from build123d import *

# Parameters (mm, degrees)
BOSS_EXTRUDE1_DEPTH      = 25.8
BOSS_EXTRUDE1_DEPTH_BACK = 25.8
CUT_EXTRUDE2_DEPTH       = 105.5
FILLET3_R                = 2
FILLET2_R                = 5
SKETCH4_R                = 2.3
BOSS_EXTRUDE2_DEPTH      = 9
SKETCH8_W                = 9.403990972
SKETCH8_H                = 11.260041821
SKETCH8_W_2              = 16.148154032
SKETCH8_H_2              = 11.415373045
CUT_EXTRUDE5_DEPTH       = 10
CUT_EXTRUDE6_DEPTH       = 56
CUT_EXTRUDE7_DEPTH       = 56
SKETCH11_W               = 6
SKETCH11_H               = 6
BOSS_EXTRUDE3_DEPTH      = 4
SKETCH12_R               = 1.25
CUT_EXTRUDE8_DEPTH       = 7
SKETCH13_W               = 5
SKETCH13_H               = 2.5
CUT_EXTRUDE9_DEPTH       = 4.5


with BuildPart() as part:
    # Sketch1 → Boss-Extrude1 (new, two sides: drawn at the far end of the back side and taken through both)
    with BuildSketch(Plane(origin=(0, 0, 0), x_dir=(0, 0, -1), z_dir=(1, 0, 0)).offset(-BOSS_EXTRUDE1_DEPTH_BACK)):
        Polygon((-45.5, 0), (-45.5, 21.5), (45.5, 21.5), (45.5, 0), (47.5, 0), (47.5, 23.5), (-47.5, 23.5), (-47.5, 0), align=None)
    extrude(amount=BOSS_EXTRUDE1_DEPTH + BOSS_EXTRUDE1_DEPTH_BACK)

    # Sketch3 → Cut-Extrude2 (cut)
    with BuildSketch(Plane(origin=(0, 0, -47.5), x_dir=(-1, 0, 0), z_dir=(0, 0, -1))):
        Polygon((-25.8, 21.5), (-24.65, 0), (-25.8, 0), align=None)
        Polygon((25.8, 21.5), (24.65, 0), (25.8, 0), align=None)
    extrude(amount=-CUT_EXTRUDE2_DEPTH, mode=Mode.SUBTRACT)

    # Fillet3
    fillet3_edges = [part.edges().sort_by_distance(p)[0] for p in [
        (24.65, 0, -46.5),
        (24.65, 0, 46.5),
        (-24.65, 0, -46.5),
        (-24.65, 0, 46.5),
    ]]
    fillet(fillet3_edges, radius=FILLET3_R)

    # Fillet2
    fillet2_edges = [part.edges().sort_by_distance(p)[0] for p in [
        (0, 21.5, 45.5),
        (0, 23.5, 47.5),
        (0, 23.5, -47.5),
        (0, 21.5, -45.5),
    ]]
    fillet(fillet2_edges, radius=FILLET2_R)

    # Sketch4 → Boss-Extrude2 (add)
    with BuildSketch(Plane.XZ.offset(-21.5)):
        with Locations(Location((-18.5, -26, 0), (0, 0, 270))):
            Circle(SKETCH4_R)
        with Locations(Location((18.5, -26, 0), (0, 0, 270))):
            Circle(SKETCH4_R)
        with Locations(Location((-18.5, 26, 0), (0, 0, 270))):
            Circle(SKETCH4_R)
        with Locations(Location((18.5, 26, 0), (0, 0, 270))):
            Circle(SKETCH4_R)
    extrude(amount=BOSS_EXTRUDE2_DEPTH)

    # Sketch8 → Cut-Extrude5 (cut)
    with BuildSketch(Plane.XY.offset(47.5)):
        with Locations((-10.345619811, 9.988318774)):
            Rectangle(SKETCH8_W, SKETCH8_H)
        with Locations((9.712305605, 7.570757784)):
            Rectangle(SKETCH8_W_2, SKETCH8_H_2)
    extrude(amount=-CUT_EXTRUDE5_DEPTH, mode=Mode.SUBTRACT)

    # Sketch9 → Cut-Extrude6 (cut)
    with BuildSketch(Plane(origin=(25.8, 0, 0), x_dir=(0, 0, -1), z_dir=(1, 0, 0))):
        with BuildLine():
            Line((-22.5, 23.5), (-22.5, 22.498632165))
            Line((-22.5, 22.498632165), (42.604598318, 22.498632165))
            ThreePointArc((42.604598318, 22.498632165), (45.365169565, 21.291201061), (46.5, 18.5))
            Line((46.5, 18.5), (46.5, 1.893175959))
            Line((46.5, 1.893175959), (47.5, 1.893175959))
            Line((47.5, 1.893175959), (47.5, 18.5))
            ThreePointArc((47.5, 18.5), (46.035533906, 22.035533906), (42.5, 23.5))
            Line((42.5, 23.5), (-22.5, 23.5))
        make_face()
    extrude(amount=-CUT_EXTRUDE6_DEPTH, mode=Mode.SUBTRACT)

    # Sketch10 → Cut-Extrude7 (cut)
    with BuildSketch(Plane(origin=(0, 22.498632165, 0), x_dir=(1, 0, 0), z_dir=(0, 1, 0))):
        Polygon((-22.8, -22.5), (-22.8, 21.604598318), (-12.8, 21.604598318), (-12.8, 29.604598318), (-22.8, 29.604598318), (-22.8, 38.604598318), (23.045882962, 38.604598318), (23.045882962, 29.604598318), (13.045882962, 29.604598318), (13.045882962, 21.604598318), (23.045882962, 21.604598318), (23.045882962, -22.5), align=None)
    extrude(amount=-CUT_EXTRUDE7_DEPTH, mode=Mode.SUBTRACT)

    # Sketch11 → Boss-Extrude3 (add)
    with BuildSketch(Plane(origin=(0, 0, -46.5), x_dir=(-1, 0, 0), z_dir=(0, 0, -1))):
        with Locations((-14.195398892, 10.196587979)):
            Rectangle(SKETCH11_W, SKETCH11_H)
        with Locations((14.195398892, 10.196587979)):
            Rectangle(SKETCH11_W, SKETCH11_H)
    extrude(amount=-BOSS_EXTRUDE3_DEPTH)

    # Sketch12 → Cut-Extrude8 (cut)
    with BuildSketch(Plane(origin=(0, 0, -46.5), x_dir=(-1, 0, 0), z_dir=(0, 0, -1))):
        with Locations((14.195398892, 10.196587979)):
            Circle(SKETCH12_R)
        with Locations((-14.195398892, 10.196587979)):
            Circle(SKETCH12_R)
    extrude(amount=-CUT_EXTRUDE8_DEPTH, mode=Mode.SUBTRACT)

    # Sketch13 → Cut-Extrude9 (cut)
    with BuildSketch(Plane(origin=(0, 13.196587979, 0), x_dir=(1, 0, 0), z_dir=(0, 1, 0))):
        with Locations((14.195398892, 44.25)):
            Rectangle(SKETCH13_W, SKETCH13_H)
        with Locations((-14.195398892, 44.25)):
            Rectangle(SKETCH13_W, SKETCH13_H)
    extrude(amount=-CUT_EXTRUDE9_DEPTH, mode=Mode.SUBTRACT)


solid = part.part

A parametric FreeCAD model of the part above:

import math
import FreeCAD as App
import Part
import Sketcher

V = App.Vector
Q = App.Units.Quantity


def edges_at(feature, points):
    """Names of the edges that pass closest to the given points."""
    edges = feature.Shape.Edges
    near = lambda p: min(range(len(edges)), key=lambda i: edges[i].distToShape(Part.Vertex(*p))[0])
    return sorted({f"Edge{near(p) + 1}" for p in points})


def add_polygon(sketch, points):
    """Adds a closed chain of lines whose ends are joined by coincident constraints."""
    first, n = sketch.GeometryCount, len(points)
    for a, b in zip(points, points[1:] + points[:1]):
        sketch.addGeometry(Part.LineSegment(App.Vector(*a, 0), App.Vector(*b, 0)), False)
    for i in range(n):
        sketch.addConstraint(Sketcher.Constraint("Coincident", first + i, 2, first + (i + 1) % n, 1))

doc = App.newDocument("Part")
body = doc.addObject("PartDesign::Body", "Body")

sketch1 = body.newObject("Sketcher::SketchObject", "Sketch")
sketch1.AttachmentSupport = (doc.getObject("YZ_Plane"), [""])
sketch1.MapMode = "FlatFace"
add_polygon(sketch1, [(0, 45.5), (21.5, 45.5), (21.5, -45.5), (0, -45.5), (0, -47.5), (23.5, -47.5), (23.5, 47.5), (0, 47.5)])
sketch1.addConstraint([
    Sketcher.Constraint("Horizontal", 0),
    Sketcher.Constraint("Vertical", 1),
    Sketcher.Constraint("Horizontal", 2),
    Sketcher.Constraint("Vertical", 3),
    Sketcher.Constraint("Horizontal", 4),
    Sketcher.Constraint("Vertical", 5),
    Sketcher.Constraint("Horizontal", 6),
    Sketcher.Constraint("Vertical", 7),
    Sketcher.Constraint("Symmetric", 3, 2, 6, 2, -1, 1),
    Sketcher.Constraint("Symmetric", 2, 2, 7, 2, -1),
    Sketcher.Constraint("DistanceY", 1, 2, 1, 1, Q("91 mm")),
    Sketcher.Constraint("DistanceY", 3, 2, 3, 1, Q("2 mm")),
    Sketcher.Constraint("DistanceX", 0, 1, 0, 2, Q("21.5 mm")),
    Sketcher.Constraint("DistanceX", 4, 1, 4, 2, Q("23.5 mm")),
])
pad1 = body.newObject("PartDesign::Pad", "Pad")
pad1.Profile = sketch1
pad1.Type = "TwoLengths"
pad1.Length = 25.8
pad1.Length2 = 25.8

sketch2 = body.newObject("Sketcher::SketchObject", "Sketch001")
sketch2.AttachmentSupport = (doc.getObject("XY_Plane"), [""])
sketch2.MapMode = "FlatFace"
sketch2.AttachmentOffset = App.Placement(V(0, 0, -47.5), App.Rotation())
add_polygon(sketch2, [(24.6, 0), (25.8, 21.5), (25.8, 0)])
add_polygon(sketch2, [(-25.8, 21.5), (-24.6, 0), (-25.8, 0)])
sketch2.addConstraint([
    Sketcher.Constraint("Vertical", 1),
    Sketcher.Constraint("Horizontal", 2),
    Sketcher.Constraint("Horizontal", 4),
    Sketcher.Constraint("Vertical", 5),
    Sketcher.Constraint("Symmetric", 2, 2, 3, 2, -1, 1),
    Sketcher.Constraint("Symmetric", 1, 2, 4, 2, -2),
    Sketcher.Constraint("Horizontal", 0, 2, 5, 2),
    Sketcher.Constraint("DistanceY", 1, 2, 1, 1, Q("21.5 mm")),
    Sketcher.Constraint("DistanceX", 2, 2, 2, 1, Q("1.15 mm")),
    Sketcher.Constraint("DistanceX", -1, 1, 0, 2, Q("25.8 mm")),
])
pocket1 = body.newObject("PartDesign::Pocket", "Pocket")
pocket1.Profile = sketch2
pocket1.Length = 105.5
pocket1.Reversed = True
doc.recompute()

fillet = body.newObject("PartDesign::Fillet", "Fillet")
fillet.Base = (pocket1, edges_at(pocket1, [
    (24.65, 0, -46.5),
    (24.65, 0, 46.5),
    (-24.65, 0, -46.5),
    (-24.65, 0, 46.5),
]))
fillet.Radius = 2
doc.recompute()

fillet2 = body.newObject("PartDesign::Fillet", "Fillet001")
fillet2.Base = (fillet, edges_at(fillet, [
    (0, 21.5, 45.5),
    (0, 23.5, 47.5),
    (0, 23.5, -47.5),
    (0, 21.5, -45.5),
]))
fillet2.Radius = 5

sketch3 = body.newObject("Sketcher::SketchObject", "Sketch002")
sketch3.AttachmentSupport = (doc.getObject("XZ_Plane"), [""])
sketch3.MapMode = "FlatFace"
sketch3.AttachmentOffset = App.Placement(V(0, 0, -21.5), App.Rotation())
sketch3.addGeometry([
    Part.Circle(V(-18.5, -26, 0), V(0, 0, 1), 2.3),
    Part.Circle(V(18.5, -26, 0), V(0, 0, 1), 2.3),
    Part.Circle(V(-18.5, 26, 0), V(0, 0, 1), 2.3),
    Part.Circle(V(18.5, 26, 0), V(0, 0, 1), 2.3),
], False)
sketch3.addConstraint([
    Sketcher.Constraint("Equal", 0, 1),
    Sketcher.Constraint("Equal", 1, 2),
    Sketcher.Constraint("Equal", 2, 3),
    Sketcher.Constraint("Symmetric", 1, 3, 2, 3, -1, 1),
    Sketcher.Constraint("Symmetric", 0, 3, 3, 3, -1, 1),
    Sketcher.Constraint("Symmetric", 0, 3, 1, 3, -2),
    Sketcher.Constraint("Diameter", 0, Q("4.6 mm")),
    Sketcher.Constraint("DistanceY", 0, 3, -1, 1, Q("26 mm")),
    Sketcher.Constraint("DistanceX", 0, 3, 1, 3, Q("37 mm")),
])
pad2 = body.newObject("PartDesign::Pad", "Pad001")
pad2.Profile = sketch3
pad2.Length = 9

sketch4 = body.newObject("Sketcher::SketchObject", "Sketch003")
sketch4.AttachmentSupport = (doc.getObject("XY_Plane"), [""])
sketch4.MapMode = "FlatFace"
sketch4.AttachmentOffset = App.Placement(V(0, 0, 47.5), App.Rotation())
add_polygon(sketch4, [(-15, 16), (-15, 4), (-6, 4), (-6, 16)])
add_polygon(sketch4, [(2, 13), (2, 2), (18, 2), (18, 13)])
sketch4.addConstraint([
    Sketcher.Constraint("Vertical", 0),
    Sketcher.Constraint("Horizontal", 1),
    Sketcher.Constraint("Vertical", 2),
    Sketcher.Constraint("Horizontal", 3),
    Sketcher.Constraint("Vertical", 4),
    Sketcher.Constraint("Horizontal", 5),
    Sketcher.Constraint("Vertical", 6),
    Sketcher.Constraint("Horizontal", 7),
    Sketcher.Constraint("DistanceX", 1, 1, 1, 2, Q("9.403991 mm")),
    Sketcher.Constraint("DistanceY", 0, 2, 0, 1, Q("11.260042 mm")),
    Sketcher.Constraint("DistanceX", 5, 1, 5, 2, Q("16.148154 mm")),
    Sketcher.Constraint("DistanceY", 4, 2, 4, 1, Q("11.415373 mm")),
    Sketcher.Constraint("DistanceY", -1, 1, 2, 2, Q("15.61834 mm")),
    Sketcher.Constraint("DistanceX", -1, 1, 4, 2, Q("1.638229 mm")),
    Sketcher.Constraint("DistanceY", -1, 1, 4, 2, Q("1.863071 mm")),
    Sketcher.Constraint("DistanceX", 0, 2, -1, 1, Q("15.047615 mm")),
])
pocket2 = body.newObject("PartDesign::Pocket", "Pocket001")
pocket2.Profile = sketch4
pocket2.Length = 10

sketch5 = body.newObject("Sketcher::SketchObject", "Sketch004")
sketch5.AttachmentSupport = (doc.getObject("YZ_Plane"), [""])
sketch5.MapMode = "FlatFace"
sketch5.AttachmentOffset = App.Placement(V(0, 0, 25.8), App.Rotation())
sketch5.addGeometry([
    Part.LineSegment(V(23.5, 22.5, 0), V(22.5, 22.5, 0)),
    Part.LineSegment(V(22.5, 22.5, 0), V(22.5, -42.6, 0)),
    Part.ArcOfCircle(Part.Circle(V(18.5, -42.5, 0), V(0, 0, 1), 4), math.radians(-90), math.radians(-1)),
    Part.LineSegment(V(18.5, -46.5, 0), V(1.9, -46.5, 0)),
    Part.LineSegment(V(1.9, -46.5, 0), V(1.9, -47.5, 0)),
    Part.LineSegment(V(1.9, -47.5, 0), V(18.5, -47.5, 0)),
    Part.ArcOfCircle(Part.Circle(V(18.5, -42.5, 0), V(0, 0, 1), 5), math.radians(-90), math.radians(0)),
    Part.LineSegment(V(23.5, -42.5, 0), V(23.5, 22.5, 0)),
], False)
sketch5.addConstraint([
    Sketcher.Constraint("Coincident", 0, 2, 1, 1),
    Sketcher.Constraint("Coincident", 1, 2, 2, 2),
    Sketcher.Constraint("Tangent", 2, 1, 3, 1),
    Sketcher.Constraint("Coincident", 3, 2, 4, 1),
    Sketcher.Constraint("Coincident", 4, 2, 5, 1),
    Sketcher.Constraint("Tangent", 5, 2, 6, 1),
    Sketcher.Constraint("Tangent", 6, 2, 7, 1),
    Sketcher.Constraint("Coincident", 7, 2, 0, 1),
    Sketcher.Constraint("Horizontal", 0),
    Sketcher.Constraint("Vertical", 1),
    Sketcher.Constraint("Horizontal", 3),
    Sketcher.Constraint("Vertical", 4),
    Sketcher.Constraint("Horizontal", 5),
    Sketcher.Constraint("Vertical", 7),
    Sketcher.Constraint("Coincident", 6, 3, 2, 3),
    Sketcher.Constraint("Radius", 2, Q("4 mm")),
    Sketcher.Constraint("Radius", 6, Q("5 mm")),
    Sketcher.Constraint("DistanceY", 7, 1, 7, 2, Q("65 mm")),
    Sketcher.Constraint("DistanceX", -1, 1, 2, 3, Q("18.5 mm")),
    Sketcher.Constraint("DistanceY", 2, 3, -1, 1, Q("42.5 mm")),
    Sketcher.Constraint("DistanceY", 1, 2, 1, 1, Q("65.104598 mm")),
    Sketcher.Constraint("DistanceX", 3, 2, 3, 1, Q("16.606824 mm")),
])
pocket3 = body.newObject("PartDesign::Pocket", "Pocket002")
pocket3.Profile = sketch5
pocket3.Length = 56

sketch6 = body.newObject("Sketcher::SketchObject", "Sketch005")
sketch6.AttachmentSupport = (doc.getObject("XZ_Plane"), [""])
sketch6.MapMode = "FlatFace"
sketch6.AttachmentOffset = App.Placement(V(0, 0, -22.498632), App.Rotation())
add_polygon(sketch6, [(-23, -22), (-23, 22), (23, 22), (23, -22), (13, -22), (13, -30), (23, -30), (23, -39), (-23, -39), (-23, -30), (-13, -30), (-13, -22)])
sketch6.addConstraint([
    Sketcher.Constraint("Vertical", 0),
    Sketcher.Constraint("Horizontal", 1),
    Sketcher.Constraint("Vertical", 2),
    Sketcher.Constraint("Horizontal", 3),
    Sketcher.Constraint("Vertical", 4),
    Sketcher.Constraint("Horizontal", 5),
    Sketcher.Constraint("Vertical", 6),
    Sketcher.Constraint("Horizontal", 7),
    Sketcher.Constraint("Vertical", 8),
    Sketcher.Constraint("Horizontal", 9),
    Sketcher.Constraint("Vertical", 10),
    Sketcher.Constraint("Horizontal", 11),
    Sketcher.Constraint("Horizontal", 5, 2, 8, 2),
    Sketcher.Constraint("Horizontal", 3, 2, 10, 2),
    Sketcher.Constraint("Vertical", 2, 2, 5, 2),
    Sketcher.Constraint("Vertical", 0, 2, 7, 2),
    Sketcher.Constraint("Equal", 5, 9),
    Sketcher.Constraint("DistanceX", 3, 2, 3, 1, Q("10 mm")),
    Sketcher.Constraint("DistanceY", 4, 2, 4, 1, Q("8 mm")),
    Sketcher.Constraint("DistanceY", 6, 2, 6, 1, Q("9 mm")),
    Sketcher.Constraint("DistanceX", 0, 2, -1, 1, Q("22.8 mm")),
    Sketcher.Constraint("DistanceY", -1, 1, 0, 2, Q("22.5 mm")),
    Sketcher.Constraint("DistanceY", 0, 1, 0, 2, Q("44.104598 mm")),
    Sketcher.Constraint("DistanceX", 1, 1, 1, 2, Q("45.845883 mm")),
])
pocket4 = body.newObject("PartDesign::Pocket", "Pocket003")
pocket4.Profile = sketch6
pocket4.Length = 56
pocket4.Reversed = True

sketch7 = body.newObject("Sketcher::SketchObject", "Sketch006")
sketch7.AttachmentSupport = (doc.getObject("XY_Plane"), [""])
sketch7.MapMode = "FlatFace"
sketch7.AttachmentOffset = App.Placement(V(0, 0, -46.5), App.Rotation())
add_polygon(sketch7, [(17, 13), (17, 7), (11, 7), (11, 13)])
add_polygon(sketch7, [(-11, 13), (-11, 7), (-17, 7), (-17, 13)])
sketch7.addConstraint([
    Sketcher.Constraint("Vertical", 0),
    Sketcher.Constraint("Horizontal", 1),
    Sketcher.Constraint("Vertical", 2),
    Sketcher.Constraint("Horizontal", 3),
    Sketcher.Constraint("Vertical", 4),
    Sketcher.Constraint("Horizontal", 5),
    Sketcher.Constraint("Vertical", 6),
    Sketcher.Constraint("Horizontal", 7),
    Sketcher.Constraint("Symmetric", 1, 2, 4, 2, -2),
    Sketcher.Constraint("Symmetric", 3, 2, 6, 2, -2),
    Sketcher.Constraint("Equal", 7, 0),
    Sketcher.Constraint("DistanceX", 1, 2, 1, 1, Q("6 mm")),
    Sketcher.Constraint("DistanceX", -1, 1, 0, 2, Q("17.195399 mm")),
    Sketcher.Constraint("DistanceY", -1, 1, 0, 2, Q("7.196588 mm")),
])
pad3 = body.newObject("PartDesign::Pad", "Pad002")
pad3.Profile = sketch7
pad3.Length = 4

sketch8 = body.newObject("Sketcher::SketchObject", "Sketch007")
sketch8.AttachmentSupport = (doc.getObject("XY_Plane"), [""])
sketch8.MapMode = "FlatFace"
sketch8.AttachmentOffset = App.Placement(V(0, 0, -46.5), App.Rotation())
sketch8.addGeometry([
    Part.Circle(V(-14.2, 10.2, 0), V(0, 0, 1), 1.2),
    Part.Circle(V(14.2, 10.2, 0), V(0, 0, 1), 1.2),
], False)
sketch8.addConstraint([
    Sketcher.Constraint("Equal", 0, 1),
    Sketcher.Constraint("Symmetric", 0, 3, 1, 3, -2),
    Sketcher.Constraint("Diameter", 0, Q("2.5 mm")),
    Sketcher.Constraint("DistanceX", 0, 3, -1, 1, Q("14.195399 mm")),
    Sketcher.Constraint("DistanceY", -1, 1, 0, 3, Q("10.196588 mm")),
])
pocket5 = body.newObject("PartDesign::Pocket", "Pocket004")
pocket5.Profile = sketch8
pocket5.Length = 7
pocket5.Reversed = True

sketch9 = body.newObject("Sketcher::SketchObject", "Sketch008")
sketch9.AttachmentSupport = (doc.getObject("XZ_Plane"), [""])
sketch9.MapMode = "FlatFace"
sketch9.AttachmentOffset = App.Placement(V(0, 0, -13.196588), App.Rotation())
add_polygon(sketch9, [(11.7, -45.5), (11.7, -43), (16.7, -43), (16.7, -45.5)])
add_polygon(sketch9, [(-16.7, -45.5), (-16.7, -43), (-11.7, -43), (-11.7, -45.5)])
sketch9.addConstraint([
    Sketcher.Constraint("Vertical", 0),
    Sketcher.Constraint("Horizontal", 1),
    Sketcher.Constraint("Vertical", 2),
    Sketcher.Constraint("Horizontal", 3),
    Sketcher.Constraint("Vertical", 4),
    Sketcher.Constraint("Horizontal", 5),
    Sketcher.Constraint("Vertical", 6),
    Sketcher.Constraint("Horizontal", 7),
    Sketcher.Constraint("Symmetric", 1, 2, 4, 2, -2),
    Sketcher.Constraint("Symmetric", 3, 2, 6, 2, -2),
    Sketcher.Constraint("DistanceX", 1, 1, 1, 2, Q("5 mm")),
    Sketcher.Constraint("DistanceY", 0, 1, 0, 2, Q("2.5 mm")),
    Sketcher.Constraint("DistanceY", 0, 2, -1, 1, Q("43 mm")),
    Sketcher.Constraint("DistanceX", -1, 1, 0, 2, Q("11.695399 mm")),
])
pocket6 = body.newObject("PartDesign::Pocket", "Pocket005")
pocket6.Profile = sketch9
pocket6.Length = 4.5
pocket6.Reversed = True

doc.recompute()
